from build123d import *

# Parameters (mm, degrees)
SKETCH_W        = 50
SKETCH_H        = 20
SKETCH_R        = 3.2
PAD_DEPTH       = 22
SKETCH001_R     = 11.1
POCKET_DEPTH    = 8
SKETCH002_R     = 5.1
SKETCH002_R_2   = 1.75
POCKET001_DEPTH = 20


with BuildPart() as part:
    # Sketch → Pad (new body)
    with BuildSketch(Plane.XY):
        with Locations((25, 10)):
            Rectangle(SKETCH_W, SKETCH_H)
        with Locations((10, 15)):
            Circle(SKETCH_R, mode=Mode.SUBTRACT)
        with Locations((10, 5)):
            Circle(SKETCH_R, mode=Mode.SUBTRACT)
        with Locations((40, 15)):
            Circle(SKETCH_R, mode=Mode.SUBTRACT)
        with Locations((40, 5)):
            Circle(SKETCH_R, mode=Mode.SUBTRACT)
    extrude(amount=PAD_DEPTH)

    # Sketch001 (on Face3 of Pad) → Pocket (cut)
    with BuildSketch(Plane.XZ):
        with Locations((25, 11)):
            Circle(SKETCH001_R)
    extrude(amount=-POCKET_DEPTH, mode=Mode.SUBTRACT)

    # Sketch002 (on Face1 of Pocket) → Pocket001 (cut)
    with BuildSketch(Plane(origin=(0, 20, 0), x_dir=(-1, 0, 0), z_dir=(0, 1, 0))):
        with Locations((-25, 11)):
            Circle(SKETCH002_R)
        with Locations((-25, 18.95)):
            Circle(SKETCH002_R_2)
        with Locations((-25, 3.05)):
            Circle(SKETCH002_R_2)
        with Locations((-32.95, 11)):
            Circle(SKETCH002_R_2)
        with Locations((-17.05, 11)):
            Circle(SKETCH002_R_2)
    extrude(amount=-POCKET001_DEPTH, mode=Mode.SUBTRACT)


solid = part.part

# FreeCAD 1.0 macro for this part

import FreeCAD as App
import Part
import Sketcher
Q = App.Units.Quantity

doc = App.newDocument("Part")
body = doc.addObject("PartDesign::Body", "Body")

# Sketch on XY plane
sketch1 = body.newObject("Sketcher::SketchObject", "Sketch")
sketch1.AttachmentSupport = (doc.getObject("XY_Plane"), [""])
sketch1.MapMode = "FlatFace"
sketch1.addGeometry([
    Part.LineSegment(App.Vector(0, 20, 0), App.Vector(0, 0, 0)),  # 0
    Part.LineSegment(App.Vector(0, 0, 0), App.Vector(50, 0, 0)),  # 1
    Part.LineSegment(App.Vector(50, 0, 0), App.Vector(50, 20, 0)),  # 2
    Part.LineSegment(App.Vector(50, 20, 0), App.Vector(0, 20, 0)),  # 3
    Part.Circle(App.Vector(10, 5, 0), App.Vector(0, 0, 1), 3.2),  # 4
    Part.Circle(App.Vector(40, 5, 0), App.Vector(0, 0, 1), 3.2),  # 5
    Part.Circle(App.Vector(10, 15, 0), App.Vector(0, 0, 1), 3.2),  # 6
    Part.Circle(App.Vector(40, 15, 0), App.Vector(0, 0, 1), 3.2),  # 7
], False)
sketch1.addConstraint([
    Sketcher.Constraint("Coincident", 0, 2, 1, 1),
    Sketcher.Constraint("Coincident", 1, 2, 2, 1),
    Sketcher.Constraint("Coincident", 2, 2, 3, 1),
    Sketcher.Constraint("Coincident", 3, 2, 0, 1),
    Sketcher.Constraint("Vertical", 0),
    Sketcher.Constraint("Horizontal", 1),
    Sketcher.Constraint("Vertical", 2),
    Sketcher.Constraint("Horizontal", 3),
    Sketcher.Constraint("Coincident", 0, 2, -1, 1),
    Sketcher.Constraint("Equal", 4, 5),
    Sketcher.Constraint("Equal", 5, 6),
    Sketcher.Constraint("Equal", 6, 7),
    Sketcher.Constraint("Horizontal", 4, 3, 5, 3),
    Sketcher.Constraint("Horizontal", 6, 3, 7, 3),
    Sketcher.Constraint("Vertical", 4, 3, 6, 3),
    Sketcher.Constraint("Vertical", 5, 3, 7, 3),
    Sketcher.Constraint("Diameter", 4, Q("6.4 mm")),
    Sketcher.Constraint("DistanceX", 1, 1, 1, 2, Q("50 mm")),
    Sketcher.Constraint("DistanceY", 0, 2, 0, 1, Q("20 mm")),
    Sketcher.Constraint("DistanceX", -1, 1, 4, 3, Q("10 mm")),
    Sketcher.Constraint("DistanceY", -1, 1, 4, 3, Q("5 mm")),
    Sketcher.Constraint("DistanceX", -1, 1, 5, 3, Q("40 mm")),
    Sketcher.Constraint("DistanceY", -1, 1, 6, 3, Q("15 mm")),
])
pad1 = body.newObject("PartDesign::Pad", "Pad")
pad1.Profile = sketch1
pad1.Length = 22

# Sketch on XZ plane
sketch2 = body.newObject("Sketcher::SketchObject", "Sketch001")
sketch2.AttachmentSupport = (doc.getObject("XZ_Plane"), [""])
sketch2.MapMode = "FlatFace"
sketch2.addGeometry(Part.Circle(App.Vector(25, 11, 0), App.Vector(0, 0, 1), 11), False)
sketch2.addConstraint([
    Sketcher.Constraint("Diameter", 0, Q("22.2 mm")),
    Sketcher.Constraint("DistanceX", -1, 1, 0, 3, Q("25 mm")),
    Sketcher.Constraint("DistanceY", -1, 1, 0, 3, Q("11 mm")),
])
pocket1 = body.newObject("PartDesign::Pocket", "Pocket")
pocket1.Profile = sketch2
pocket1.Length = 8

# Sketch on XZ plane
sketch3 = body.newObject("Sketcher::SketchObject", "Sketch002")
sketch3.AttachmentSupport = (doc.getObject("XZ_Plane"), [""])
sketch3.MapMode = "FlatFace"
sketch3.AttachmentOffset = App.Placement(App.Vector(0, 0, -20), App.Rotation())
sketch3.addGeometry([
    Part.Circle(App.Vector(25, 11, 0), App.Vector(0, 0, 1), 5.1),  # 0
    Part.Circle(App.Vector(25, 18.9, 0), App.Vector(0, 0, 1), 1.8),  # 1
    Part.Circle(App.Vector(25, 3, 0), App.Vector(0, 0, 1), 1.8),  # 2
    Part.Circle(App.Vector(33, 11, 0), App.Vector(0, 0, 1), 1.8),  # 3
    Part.Circle(App.Vector(17.1, 11, 0), App.Vector(0, 0, 1), 1.8),  # 4
], False)
sketch3.addConstraint([
    Sketcher.Constraint("Equal", 1, 2),
    Sketcher.Constraint("Equal", 2, 3),
    Sketcher.Constraint("Equal", 3, 4),
    Sketcher.Constraint("Horizontal", 0, 3, 3, 3),
    Sketcher.Constraint("Horizontal", 3, 3, 4, 3),
    Sketcher.Constraint("Vertical", 0, 3, 1, 3),
    Sketcher.Constraint("Vertical", 1, 3, 2, 3),
    Sketcher.Constraint("Diameter", 0, Q("10.2 mm")),
    Sketcher.Constraint("Diameter", 1, Q("3.5 mm")),
    Sketcher.Constraint("DistanceX", -1, 1, 0, 3, Q("25 mm")),
    Sketcher.Constraint("DistanceY", -1, 1, 0, 3, Q("11 mm")),
    Sketcher.Constraint("DistanceY", 2, 3, 1, 3, Q("15.9 mm")),
    Sketcher.Constraint("DistanceX", 4, 3, 3, 3, Q("15.9 mm")),
    Sketcher.Constraint("DistanceY", -1, 1, 1, 3, Q("18.95 mm")),
    Sketcher.Constraint("DistanceX", -1, 1, 3, 3, Q("32.95 mm")),
])
pocket2 = body.newObject("PartDesign::Pocket", "Pocket001")
pocket2.Profile = sketch3
pocket2.Length = 20
pocket2.Reversed = True

doc.recompute()
